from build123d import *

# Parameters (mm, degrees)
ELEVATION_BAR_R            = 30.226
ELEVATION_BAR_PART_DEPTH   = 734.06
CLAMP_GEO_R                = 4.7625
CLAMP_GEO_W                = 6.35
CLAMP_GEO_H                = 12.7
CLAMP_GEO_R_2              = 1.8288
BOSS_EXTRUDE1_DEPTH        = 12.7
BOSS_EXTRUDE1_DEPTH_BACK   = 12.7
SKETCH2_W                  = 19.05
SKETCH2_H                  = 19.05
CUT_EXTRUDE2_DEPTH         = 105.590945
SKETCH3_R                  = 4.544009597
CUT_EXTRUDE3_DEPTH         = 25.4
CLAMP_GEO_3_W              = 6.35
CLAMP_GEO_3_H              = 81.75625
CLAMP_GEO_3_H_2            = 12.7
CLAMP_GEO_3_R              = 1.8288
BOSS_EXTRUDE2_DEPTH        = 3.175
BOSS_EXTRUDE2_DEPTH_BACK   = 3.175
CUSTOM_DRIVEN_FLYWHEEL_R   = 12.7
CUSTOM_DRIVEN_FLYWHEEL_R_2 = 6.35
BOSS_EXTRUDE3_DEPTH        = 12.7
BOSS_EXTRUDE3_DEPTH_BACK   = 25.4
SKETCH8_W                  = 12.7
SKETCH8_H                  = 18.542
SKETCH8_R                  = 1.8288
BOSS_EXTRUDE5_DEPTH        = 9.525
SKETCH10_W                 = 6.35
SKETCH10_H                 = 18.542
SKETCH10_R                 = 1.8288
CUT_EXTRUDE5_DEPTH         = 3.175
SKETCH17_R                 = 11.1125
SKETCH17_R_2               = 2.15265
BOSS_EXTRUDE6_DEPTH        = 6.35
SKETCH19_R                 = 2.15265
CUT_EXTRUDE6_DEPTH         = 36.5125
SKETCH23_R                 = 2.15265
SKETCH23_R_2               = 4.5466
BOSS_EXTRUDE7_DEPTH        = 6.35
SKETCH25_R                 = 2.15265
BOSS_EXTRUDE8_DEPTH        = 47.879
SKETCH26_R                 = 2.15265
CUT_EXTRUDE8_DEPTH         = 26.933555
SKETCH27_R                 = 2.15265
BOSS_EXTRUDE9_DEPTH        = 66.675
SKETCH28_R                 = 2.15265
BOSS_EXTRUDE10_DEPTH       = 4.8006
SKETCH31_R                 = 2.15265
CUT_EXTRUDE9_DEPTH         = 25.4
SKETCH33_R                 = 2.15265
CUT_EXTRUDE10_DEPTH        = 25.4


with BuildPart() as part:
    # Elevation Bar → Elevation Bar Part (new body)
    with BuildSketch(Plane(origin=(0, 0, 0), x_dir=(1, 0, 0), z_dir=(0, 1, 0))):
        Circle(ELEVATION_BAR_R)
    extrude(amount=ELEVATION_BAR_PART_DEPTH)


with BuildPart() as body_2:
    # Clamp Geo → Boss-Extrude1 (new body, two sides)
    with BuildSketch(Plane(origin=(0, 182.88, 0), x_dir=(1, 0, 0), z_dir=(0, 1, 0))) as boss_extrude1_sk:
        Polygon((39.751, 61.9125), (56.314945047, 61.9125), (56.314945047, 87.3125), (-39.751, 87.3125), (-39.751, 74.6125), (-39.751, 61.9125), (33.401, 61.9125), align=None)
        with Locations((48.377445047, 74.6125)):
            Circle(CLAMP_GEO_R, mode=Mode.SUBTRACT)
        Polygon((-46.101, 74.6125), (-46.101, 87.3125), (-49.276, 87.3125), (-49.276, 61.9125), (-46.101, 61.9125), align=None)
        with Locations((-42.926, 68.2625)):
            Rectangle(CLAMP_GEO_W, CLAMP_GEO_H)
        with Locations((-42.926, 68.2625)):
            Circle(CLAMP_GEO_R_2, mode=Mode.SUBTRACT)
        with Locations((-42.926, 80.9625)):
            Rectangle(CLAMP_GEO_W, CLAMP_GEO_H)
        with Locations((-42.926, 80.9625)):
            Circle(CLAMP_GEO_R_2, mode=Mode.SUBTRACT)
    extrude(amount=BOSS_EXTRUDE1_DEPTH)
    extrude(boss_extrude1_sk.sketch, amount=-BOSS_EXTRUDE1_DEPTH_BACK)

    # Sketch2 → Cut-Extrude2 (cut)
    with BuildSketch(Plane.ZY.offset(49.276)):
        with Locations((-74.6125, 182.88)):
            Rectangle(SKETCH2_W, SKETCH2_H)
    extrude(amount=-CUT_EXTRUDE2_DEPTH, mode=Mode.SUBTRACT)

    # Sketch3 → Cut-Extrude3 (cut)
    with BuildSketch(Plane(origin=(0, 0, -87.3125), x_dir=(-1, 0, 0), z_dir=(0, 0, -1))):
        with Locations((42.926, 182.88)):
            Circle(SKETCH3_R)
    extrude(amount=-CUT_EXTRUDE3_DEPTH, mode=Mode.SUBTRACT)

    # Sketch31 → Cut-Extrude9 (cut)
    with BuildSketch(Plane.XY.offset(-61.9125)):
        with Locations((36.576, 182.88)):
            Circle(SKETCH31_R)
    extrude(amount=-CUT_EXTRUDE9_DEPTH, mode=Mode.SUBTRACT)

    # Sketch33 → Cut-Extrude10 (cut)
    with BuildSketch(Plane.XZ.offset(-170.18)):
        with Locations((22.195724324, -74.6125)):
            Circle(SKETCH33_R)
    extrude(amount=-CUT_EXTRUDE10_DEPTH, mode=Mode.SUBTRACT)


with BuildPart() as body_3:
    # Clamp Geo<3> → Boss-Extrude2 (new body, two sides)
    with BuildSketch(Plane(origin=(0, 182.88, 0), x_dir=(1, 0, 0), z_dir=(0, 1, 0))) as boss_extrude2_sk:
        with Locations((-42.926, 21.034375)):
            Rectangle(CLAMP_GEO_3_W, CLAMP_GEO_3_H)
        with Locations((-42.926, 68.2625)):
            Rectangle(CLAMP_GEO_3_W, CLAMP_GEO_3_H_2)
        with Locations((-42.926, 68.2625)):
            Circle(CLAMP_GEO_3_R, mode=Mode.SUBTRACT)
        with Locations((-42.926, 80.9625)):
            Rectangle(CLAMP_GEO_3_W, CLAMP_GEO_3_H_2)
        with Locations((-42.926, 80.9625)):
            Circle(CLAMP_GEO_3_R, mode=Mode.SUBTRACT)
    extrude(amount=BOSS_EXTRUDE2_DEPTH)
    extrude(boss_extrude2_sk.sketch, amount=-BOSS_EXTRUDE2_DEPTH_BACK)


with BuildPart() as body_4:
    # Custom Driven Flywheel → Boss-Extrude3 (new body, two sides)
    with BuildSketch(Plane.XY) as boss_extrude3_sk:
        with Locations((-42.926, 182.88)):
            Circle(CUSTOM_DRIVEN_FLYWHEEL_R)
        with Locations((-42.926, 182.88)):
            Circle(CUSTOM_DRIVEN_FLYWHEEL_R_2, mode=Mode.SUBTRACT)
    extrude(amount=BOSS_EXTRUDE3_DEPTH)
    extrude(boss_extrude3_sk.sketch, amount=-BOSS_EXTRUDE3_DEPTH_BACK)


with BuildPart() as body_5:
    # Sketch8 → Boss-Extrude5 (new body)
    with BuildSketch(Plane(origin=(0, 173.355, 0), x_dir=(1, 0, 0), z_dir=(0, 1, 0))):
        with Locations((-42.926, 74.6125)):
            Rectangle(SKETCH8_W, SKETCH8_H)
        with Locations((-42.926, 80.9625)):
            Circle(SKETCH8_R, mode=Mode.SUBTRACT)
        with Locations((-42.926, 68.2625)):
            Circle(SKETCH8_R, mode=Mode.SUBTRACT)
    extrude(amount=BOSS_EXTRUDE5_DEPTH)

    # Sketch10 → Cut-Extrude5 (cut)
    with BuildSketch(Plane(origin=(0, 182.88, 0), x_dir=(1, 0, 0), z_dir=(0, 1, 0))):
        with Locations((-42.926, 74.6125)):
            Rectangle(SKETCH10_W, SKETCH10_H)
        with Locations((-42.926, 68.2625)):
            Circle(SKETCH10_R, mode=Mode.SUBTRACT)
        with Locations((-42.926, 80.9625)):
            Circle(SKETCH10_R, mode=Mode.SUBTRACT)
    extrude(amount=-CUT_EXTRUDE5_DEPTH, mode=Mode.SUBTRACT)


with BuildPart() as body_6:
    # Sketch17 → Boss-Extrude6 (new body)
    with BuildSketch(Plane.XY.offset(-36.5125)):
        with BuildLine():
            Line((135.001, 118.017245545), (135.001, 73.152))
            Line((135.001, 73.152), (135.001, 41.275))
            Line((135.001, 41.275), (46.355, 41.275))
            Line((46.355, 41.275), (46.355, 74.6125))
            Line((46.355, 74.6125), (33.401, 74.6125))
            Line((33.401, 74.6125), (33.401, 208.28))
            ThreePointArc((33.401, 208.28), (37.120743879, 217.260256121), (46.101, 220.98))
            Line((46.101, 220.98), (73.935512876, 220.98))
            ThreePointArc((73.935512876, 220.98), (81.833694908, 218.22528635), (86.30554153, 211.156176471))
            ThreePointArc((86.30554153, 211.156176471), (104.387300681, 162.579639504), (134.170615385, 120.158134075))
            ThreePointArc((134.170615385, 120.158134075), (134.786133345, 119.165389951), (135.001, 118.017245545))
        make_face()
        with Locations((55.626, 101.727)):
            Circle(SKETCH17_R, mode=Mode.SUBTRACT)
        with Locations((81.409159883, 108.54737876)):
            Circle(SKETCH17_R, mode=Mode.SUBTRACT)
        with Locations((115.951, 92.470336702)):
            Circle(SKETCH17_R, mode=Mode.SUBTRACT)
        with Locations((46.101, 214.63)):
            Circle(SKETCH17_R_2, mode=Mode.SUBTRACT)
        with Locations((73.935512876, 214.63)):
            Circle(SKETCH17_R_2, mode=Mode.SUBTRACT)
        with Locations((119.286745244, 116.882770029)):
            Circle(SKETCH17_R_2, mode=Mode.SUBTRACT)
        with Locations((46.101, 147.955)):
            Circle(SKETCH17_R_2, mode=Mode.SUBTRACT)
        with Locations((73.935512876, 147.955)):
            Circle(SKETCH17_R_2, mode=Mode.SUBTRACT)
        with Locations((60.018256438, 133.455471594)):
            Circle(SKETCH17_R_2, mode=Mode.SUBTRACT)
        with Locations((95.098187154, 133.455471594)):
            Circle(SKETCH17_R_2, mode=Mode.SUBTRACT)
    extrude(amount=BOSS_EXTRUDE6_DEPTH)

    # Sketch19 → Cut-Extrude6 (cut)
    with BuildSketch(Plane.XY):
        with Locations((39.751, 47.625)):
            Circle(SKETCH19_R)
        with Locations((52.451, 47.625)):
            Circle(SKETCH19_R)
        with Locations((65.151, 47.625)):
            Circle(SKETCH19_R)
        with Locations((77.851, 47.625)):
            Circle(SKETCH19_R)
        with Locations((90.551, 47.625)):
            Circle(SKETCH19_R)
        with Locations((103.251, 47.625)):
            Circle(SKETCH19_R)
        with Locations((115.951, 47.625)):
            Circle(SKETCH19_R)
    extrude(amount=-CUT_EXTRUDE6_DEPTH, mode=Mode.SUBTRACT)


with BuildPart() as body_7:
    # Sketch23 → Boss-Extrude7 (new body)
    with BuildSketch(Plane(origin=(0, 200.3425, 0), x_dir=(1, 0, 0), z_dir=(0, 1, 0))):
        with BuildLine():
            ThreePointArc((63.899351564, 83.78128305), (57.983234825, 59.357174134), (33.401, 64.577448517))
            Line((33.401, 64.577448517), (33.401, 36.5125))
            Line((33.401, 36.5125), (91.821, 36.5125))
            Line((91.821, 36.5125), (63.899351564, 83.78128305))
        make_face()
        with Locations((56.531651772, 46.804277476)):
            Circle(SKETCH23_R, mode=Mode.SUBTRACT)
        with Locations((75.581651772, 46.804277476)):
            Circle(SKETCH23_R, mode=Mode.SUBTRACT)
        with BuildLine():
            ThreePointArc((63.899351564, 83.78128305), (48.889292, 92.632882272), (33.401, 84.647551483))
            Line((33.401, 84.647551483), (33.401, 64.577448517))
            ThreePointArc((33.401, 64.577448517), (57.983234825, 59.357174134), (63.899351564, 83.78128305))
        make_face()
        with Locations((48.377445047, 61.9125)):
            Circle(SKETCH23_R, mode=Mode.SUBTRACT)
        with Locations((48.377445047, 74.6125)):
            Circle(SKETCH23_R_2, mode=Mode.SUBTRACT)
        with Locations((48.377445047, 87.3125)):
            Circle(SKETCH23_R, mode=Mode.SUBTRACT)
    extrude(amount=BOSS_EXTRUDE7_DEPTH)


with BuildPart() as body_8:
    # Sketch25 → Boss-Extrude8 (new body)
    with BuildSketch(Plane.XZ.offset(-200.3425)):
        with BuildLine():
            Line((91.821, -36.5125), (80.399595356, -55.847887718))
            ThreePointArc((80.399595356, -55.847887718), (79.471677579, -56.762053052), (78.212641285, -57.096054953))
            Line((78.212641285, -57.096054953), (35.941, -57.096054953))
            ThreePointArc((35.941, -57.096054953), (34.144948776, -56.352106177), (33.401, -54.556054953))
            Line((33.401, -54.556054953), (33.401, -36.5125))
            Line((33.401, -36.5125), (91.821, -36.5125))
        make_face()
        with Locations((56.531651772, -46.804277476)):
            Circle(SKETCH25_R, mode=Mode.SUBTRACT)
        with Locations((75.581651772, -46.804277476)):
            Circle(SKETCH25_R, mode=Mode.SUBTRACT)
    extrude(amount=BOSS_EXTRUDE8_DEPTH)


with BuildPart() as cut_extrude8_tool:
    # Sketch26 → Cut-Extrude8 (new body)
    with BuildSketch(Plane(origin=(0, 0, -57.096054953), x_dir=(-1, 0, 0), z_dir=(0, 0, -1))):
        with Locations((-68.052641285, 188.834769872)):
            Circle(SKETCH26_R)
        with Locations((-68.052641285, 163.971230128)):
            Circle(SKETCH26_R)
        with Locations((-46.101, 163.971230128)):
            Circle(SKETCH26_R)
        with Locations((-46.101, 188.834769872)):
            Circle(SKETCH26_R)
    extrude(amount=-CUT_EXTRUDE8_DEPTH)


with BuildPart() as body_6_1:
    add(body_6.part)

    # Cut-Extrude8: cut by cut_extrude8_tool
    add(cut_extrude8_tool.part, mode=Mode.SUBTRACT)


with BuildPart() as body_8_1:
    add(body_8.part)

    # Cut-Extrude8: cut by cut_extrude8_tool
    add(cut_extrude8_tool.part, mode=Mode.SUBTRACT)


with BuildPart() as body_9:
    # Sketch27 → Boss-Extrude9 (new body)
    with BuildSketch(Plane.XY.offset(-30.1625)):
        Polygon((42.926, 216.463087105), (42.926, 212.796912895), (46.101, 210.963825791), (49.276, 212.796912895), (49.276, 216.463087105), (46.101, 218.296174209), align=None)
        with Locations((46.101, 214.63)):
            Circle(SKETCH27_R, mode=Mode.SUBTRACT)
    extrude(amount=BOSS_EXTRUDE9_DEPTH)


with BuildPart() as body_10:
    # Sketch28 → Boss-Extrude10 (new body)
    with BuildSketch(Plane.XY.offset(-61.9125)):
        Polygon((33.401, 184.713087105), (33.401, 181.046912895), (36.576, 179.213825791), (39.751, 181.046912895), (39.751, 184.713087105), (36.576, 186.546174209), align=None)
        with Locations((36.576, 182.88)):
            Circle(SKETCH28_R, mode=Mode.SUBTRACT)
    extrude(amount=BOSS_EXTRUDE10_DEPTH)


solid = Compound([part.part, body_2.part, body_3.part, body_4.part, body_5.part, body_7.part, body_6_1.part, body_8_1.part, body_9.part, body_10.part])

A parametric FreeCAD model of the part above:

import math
import FreeCAD as App
import Part
import Sketcher
Q = App.Units.Quantity

doc = App.newDocument("Part")
params = doc.addObject("Spreadsheet::Sheet", "Params")
for row, (alias, value) in enumerate([
    ("sketch1_diameter", "2.38 in"),
    ("pad1_length", "28.9 in"),
    ("sketch2_height", "1 in"),
    ("sketch2_diameter", "0.144 in"),
    ("sketch2_diameter2", "0.375 in"),
    ("pad2_length", "0.5 in"),
    ("pad2_length2", "0.5 in"),
    ("sketch3_width", "0.75 in"),
    ("pocket1_length", "105.590945 mm"),
    ("pocket2_length", "1 in"),
    ("pocket3_length", "1 in"),
    ("pocket4_length", "1 in"),
    ("sketch7_diameter", "0.144 in"),
    ("sketch7_width", "0.25 in"),
    ("sketch7_height", "4.21875 in"),
    ("pad3_length", "0.125 in"),
    ("pad3_length2", "0.125 in"),
    ("sketch8_diameter", "1 in"),
    ("sketch8_diameter2", "0.5 in"),
    ("pad4_length", "0.5 in"),
    ("pad4_length2", "1 in"),
    ("sketch9_diameter", "0.144 in"),
    ("sketch9_width", "0.5 in"),
    ("sketch9_height", "0.73 in"),
    ("pad5_length", "0.375 in"),
    ("sketch10_diameter", "0.144 in"),
    ("sketch10_width", "0.25 in"),
    ("sketch10_height", "0.73 in"),
    ("pocket5_length", "0.125 in"),
    ("sketch11_radius", "8 in"),
    ("sketch11_radius2", "0.5 in"),
    ("sketch11_diameter", "0.875 in"),
    ("sketch11_radius3", "0.125 in"),
    ("sketch11_width", "0.51 in"),
    ("pad6_length", "0.25 in"),
    ("pocket6_length", "1.4375 in"),
    ("sketch13_diameter", "0.358 in"),
    ("sketch13_width", "2.3 in"),
    ("pad7_length", "0.25 in"),
    ("sketch14_radius", "0.1 in"),
    ("sketch14_width", "2.3 in"),
    ("pad8_length", "1.885 in"),
    ("pad9_length", "26.933555 mm"),
    ("pad10_length", "2.625 in"),
    ("pad11_length", "0.189 in"),
], start=1):
    params.set(f"A{row}", alias)
    params.set(f"B{row}", "=" + value)
    params.setAlias(f"B{row}", alias)

body = doc.addObject("PartDesign::Body", "Body")

# Sketch on XZ plane
sketch1 = body.newObject("Sketcher::SketchObject", "Sketch")
sketch1.AttachmentSupport = (doc.getObject("XZ_Plane"), [""])
sketch1.MapMode = "FlatFace"
sketch1.addGeometry(Part.Circle(App.Vector(0, 0, 0), App.Vector(0, 0, 1), 30), False)
sketch1.addConstraint([
    Sketcher.Constraint("Coincident", 0, 3, -1, 1),
    Sketcher.Constraint("Diameter", 0, Q("2.38 in")),
])
sketch1.setExpression("Constraints[1]", "Params.sketch1_diameter")
pad1 = body.newObject("PartDesign::Pad", "Pad")
pad1.Profile = sketch1
pad1.setExpression("Length", "Params.pad1_length")
pad1.Reversed = True
body2 = doc.addObject("PartDesign::Body", "Body001")

# Sketch on XZ plane
sketch2 = body2.newObject("Sketcher::SketchObject", "Sketch001")
sketch2.AttachmentSupport = (doc.getObject("XZ_Plane001"), [""])
sketch2.MapMode = "FlatFace"
sketch2.AttachmentOffset = App.Placement(App.Vector(0, 0, -7.2 * 25.4), App.Rotation())
sketch2.addGeometry([
    Part.LineSegment(App.Vector(56.3, -61.9, 0), App.Vector(56.3, -87.3, 0)),  # 0
    Part.LineSegment(App.Vector(56.3, -87.3, 0), App.Vector(-49.3, -87.3, 0)),  # 1
    Part.LineSegment(App.Vector(-49.3, -87.3, 0), App.Vector(-49.3, -61.9, 0)),  # 2
    Part.LineSegment(App.Vector(-49.3, -61.9, 0), App.Vector(56.3, -61.9, 0)),  # 3
    Part.Circle(App.Vector(-42.9, -68.3, 0), App.Vector(0, 0, 1), 1.8),  # 4
    Part.Circle(App.Vector(48.4, -74.6, 0), App.Vector(0, 0, 1), 4.8),  # 5
    Part.Circle(App.Vector(-42.9, -81, 0), App.Vector(0, 0, 1), 1.8),  # 6
], False)
sketch2.addConstraint([
    Sketcher.Constraint("Coincident", 0, 2, 1, 1),
    Sketcher.Constraint("Coincident", 1, 2, 2, 1),
    Sketcher.Constraint("Coincident", 2, 2, 3, 1),
    Sketcher.Constraint("Coincident", 3, 2, 0, 1),
    Sketcher.Constraint("Vertical", 0),
    Sketcher.Constraint("Horizontal", 1),
    Sketcher.Constraint("Vertical", 2),
    Sketcher.Constraint("Horizontal", 3),
    Sketcher.Constraint("Equal", 4, 6),
    Sketcher.Constraint("Vertical", 4, 3, 6, 3),
    Sketcher.Constraint("DistanceY", 0, 2, 0, 1, Q("1 in")),
    Sketcher.Constraint("Diameter", 4, Q("0.144 in")),
    Sketcher.Constraint("Diameter", 5, Q("0.375 in")),
    Sketcher.Constraint("DistanceY", 6, 3, 4, 3, Q("0.5 in")),
    Sketcher.Constraint("DistanceY", 0, 2, 5, 3, Q("0.5 in")),
    Sketcher.Constraint("DistanceX", 4, 3, -1, 1, Q("1.69 in")),
    Sketcher.Constraint("DistanceX", 1, 2, -1, 1, Q("1.94 in")),
    Sketcher.Constraint("DistanceY", 5, 3, 4, 3, Q("0.25 in")),
    Sketcher.Constraint("DistanceY", 4, 3, -1, 1, Q("2.6875 in")),
    Sketcher.Constraint("DistanceX", 5, 3, 0, 2, Q("0.3125 in")),
    Sketcher.Constraint("DistanceX", 1, 2, 1, 1, Q("105.590945 mm")),
])
sketch2.setExpression("Constraints[10]", "Params.sketch2_height")
sketch2.setExpression("Constraints[11]", "Params.sketch2_diameter")
sketch2.setExpression("Constraints[12]", "Params.sketch2_diameter2")
pad2 = body2.newObject("PartDesign::Pad", "Pad001")
pad2.Profile = sketch2
pad2.Type = "TwoLengths"
pad2.setExpression("Length", "Params.pad2_length")
pad2.setExpression("Length2", "Params.pad2_length2")
pad2.Reversed = True

# Sketch on YZ plane
sketch3 = body2.newObject("Sketcher::SketchObject", "Sketch002")
sketch3.AttachmentSupport = (doc.getObject("YZ_Plane001"), [""])
sketch3.MapMode = "FlatFace"
sketch3.AttachmentOffset = App.Placement(App.Vector(0, 0, -1.94 * 25.4), App.Rotation())
sketch3.addGeometry([
    Part.LineSegment(App.Vector(192, -84, 0), App.Vector(173, -84, 0)),
    Part.LineSegment(App.Vector(173, -84, 0), App.Vector(173, -65, 0)),
    Part.LineSegment(App.Vector(173, -65, 0), App.Vector(192, -65, 0)),
    Part.LineSegment(App.Vector(192, -65, 0), App.Vector(192, -84, 0)),
], False)
sketch3.addConstraint([
    Sketcher.Constraint("Coincident", 0, 2, 1, 1),
    Sketcher.Constraint("Coincident", 1, 2, 2, 1),
    Sketcher.Constraint("Coincident", 2, 2, 3, 1),
    Sketcher.Constraint("Coincident", 3, 2, 0, 1),
    Sketcher.Constraint("Horizontal", 0),
    Sketcher.Constraint("Vertical", 1),
    Sketcher.Constraint("Horizontal", 2),
    Sketcher.Constraint("Vertical", 3),
    Sketcher.Constraint("Equal", 2, 1),
    Sketcher.Constraint("DistanceX", 0, 2, 0, 1, Q("0.75 in")),
    Sketcher.Constraint("DistanceX", -1, 1, 0, 2, Q("6.825 in")),
    Sketcher.Constraint("DistanceY", 0, 2, -1, 1, Q("3.3125 in")),
])
sketch3.setExpression("Constraints[9]", "Params.sketch3_width")
pocket1 = body2.newObject("PartDesign::Pocket", "Pocket")
pocket1.Profile = sketch3
pocket1.setExpression("Length", "Params.pocket1_length")
pocket1.Reversed = True

# Sketch on XY plane
sketch4 = body2.newObject("Sketcher::SketchObject", "Sketch003")
sketch4.AttachmentSupport = (doc.getObject("XY_Plane001"), [""])
sketch4.MapMode = "FlatFace"
sketch4.AttachmentOffset = App.Placement(App.Vector(0, 0, -3.4375 * 25.4), App.Rotation())
sketch4.addGeometry(Part.Circle(App.Vector(-42.9, 182.9, 0), App.Vector(0, 0, 1), 4.5), False)
sketch4.addConstraint([
    Sketcher.Constraint("DistanceY", -1, 1, 0, 3, Q("7.2 in")),
    Sketcher.Constraint("DistanceX", 0, 3, -1, 1, Q("1.69 in")),
    Sketcher.Constraint("Diameter", 0, Q("9.088019 mm")),
])
pocket2 = body2.newObject("PartDesign::Pocket", "Pocket001")
pocket2.Profile = sketch4
pocket2.setExpression("Length", "Params.pocket2_length")
pocket2.Reversed = True

# Sketch on XY plane
sketch5 = body2.newObject("Sketcher::SketchObject", "Sketch004")
sketch5.AttachmentSupport = (doc.getObject("XY_Plane001"), [""])
sketch5.MapMode = "FlatFace"
sketch5.AttachmentOffset = App.Placement(App.Vector(0, 0, -2.4375 * 25.4), App.Rotation())
sketch5.addGeometry(Part.Circle(App.Vector(36.6, 182.9, 0), App.Vector(0, 0, 1), 2.2), False)
sketch5.addConstraint([
    Sketcher.Constraint("Diameter", 0, Q("0.1695 in")),
    Sketcher.Constraint("DistanceY", -1, 1, 0, 3, Q("7.2 in")),
    Sketcher.Constraint("DistanceX", -1, 1, 0, 3, Q("1.44 in")),
])
pocket3 = body2.newObject("PartDesign::Pocket", "Pocket002")
pocket3.Profile = sketch5
pocket3.setExpression("Length", "Params.pocket3_length")

# Sketch on XZ plane
sketch6 = body2.newObject("Sketcher::SketchObject", "Sketch005")
sketch6.AttachmentSupport = (doc.getObject("XZ_Plane001"), [""])
sketch6.MapMode = "FlatFace"
sketch6.AttachmentOffset = App.Placement(App.Vector(0, 0, -6.7 * 25.4), App.Rotation())
sketch6.addGeometry(Part.Circle(App.Vector(22.2, -74.6, 0), App.Vector(0, 0, 1), 2.2), False)
sketch6.addConstraint([
    Sketcher.Constraint("Diameter", 0, Q("0.1695 in")),
    Sketcher.Constraint("DistanceY", 0, 3, -1, 1, Q("2.9375 in")),
    Sketcher.Constraint("DistanceX", -1, 1, 0, 3, Q("22.195724 mm")),
])
pocket4 = body2.newObject("PartDesign::Pocket", "Pocket003")
pocket4.Profile = sketch6
pocket4.setExpression("Length", "Params.pocket4_length")
body3 = doc.addObject("PartDesign::Body", "Body002")

# Sketch on XZ plane
sketch7 = body3.newObject("Sketcher::SketchObject", "Sketch006")
sketch7.AttachmentSupport = (doc.getObject("XZ_Plane002"), [""])
sketch7.MapMode = "FlatFace"
sketch7.AttachmentOffset = App.Placement(App.Vector(0, 0, -7.2 * 25.4), App.Rotation())
sketch7.addGeometry([
    Part.LineSegment(App.Vector(-46.1, 19.8, 0), App.Vector(-39.8, 19.8, 0)),  # 0
    Part.LineSegment(App.Vector(-39.8, 19.8, 0), App.Vector(-39.8, -87.3, 0)),  # 1
    Part.LineSegment(App.Vector(-39.8, -87.3, 0), App.Vector(-46.1, -87.3, 0)),  # 2
    Part.LineSegment(App.Vector(-46.1, -87.3, 0), App.Vector(-46.1, 19.8, 0)),  # 3
    Part.Circle(App.Vector(-42.9, -68.3, 0), App.Vector(0, 0, 1), 1.8),  # 4
    Part.Circle(App.Vector(-42.9, -81, 0), App.Vector(0, 0, 1), 1.8),  # 5
], False)
sketch7.addConstraint([
    Sketcher.Constraint("Coincident", 0, 2, 1, 1),
    Sketcher.Constraint("Coincident", 1, 2, 2, 1),
    Sketcher.Constraint("Coincident", 2, 2, 3, 1),
    Sketcher.Constraint("Coincident", 3, 2, 0, 1),
    Sketcher.Constraint("Horizontal", 0),
    Sketcher.Constraint("Vertical", 1),
    Sketcher.Constraint("Horizontal", 2),
    Sketcher.Constraint("Vertical", 3),
    Sketcher.Constraint("Equal", 4, 5),
    Sketcher.Constraint("Vertical", 4, 3, 5, 3),
    Sketcher.Constraint("Diameter", 4, Q("0.144 in")),
    Sketcher.Constraint("DistanceX", 0, 1, 0, 2, Q("0.25 in")),
    Sketcher.Constraint("DistanceY", 5, 3, 4, 3, Q("0.5 in")),
    Sketcher.Constraint("DistanceY", 1, 2, 1, 1, Q("4.21875 in")),
    Sketcher.Constraint("DistanceX", 4, 3, -1, 1, Q("1.69 in")),
    Sketcher.Constraint("DistanceY", 1, 2, 5, 3, Q("0.25 in")),
    Sketcher.Constraint("DistanceY", 4, 3, -1, 1, Q("2.6875 in")),
    Sketcher.Constraint("DistanceX", 0, 2, -1, 1, Q("1.565 in")),
])
sketch7.setExpression("Constraints[10]", "Params.sketch7_diameter")
sketch7.setExpression("Constraints[11]", "Params.sketch7_width")
sketch7.setExpression("Constraints[13]", "Params.sketch7_height")
pad3 = body3.newObject("PartDesign::Pad", "Pad002")
pad3.Profile = sketch7
pad3.Type = "TwoLengths"
pad3.setExpression("Length", "Params.pad3_length")
pad3.setExpression("Length2", "Params.pad3_length2")
pad3.Reversed = True
body4 = doc.addObject("PartDesign::Body", "Body003")

# Sketch on XY plane
sketch8 = body4.newObject("Sketcher::SketchObject", "Sketch007")
sketch8.AttachmentSupport = (doc.getObject("XY_Plane003"), [""])
sketch8.MapMode = "FlatFace"
sketch8.addGeometry([
    Part.Circle(App.Vector(-43, 183, 0), App.Vector(0, 0, 1), 13),
    Part.Circle(App.Vector(-43, 183, 0), App.Vector(0, 0, 1), 6),
], False)
sketch8.addConstraint([
    Sketcher.Constraint("Coincident", 1, 3, 0, 3),
    Sketcher.Constraint("Diameter", 0, Q("1 in")),
    Sketcher.Constraint("Diameter", 1, Q("0.5 in")),
    Sketcher.Constraint("DistanceY", -1, 1, 0, 3, Q("7.2 in")),
    Sketcher.Constraint("DistanceX", 0, 3, -1, 1, Q("1.69 in")),
])
sketch8.setExpression("Constraints[1]", "Params.sketch8_diameter")
sketch8.setExpression("Constraints[2]", "Params.sketch8_diameter2")
pad4 = body4.newObject("PartDesign::Pad", "Pad003")
pad4.Profile = sketch8
pad4.Type = "TwoLengths"
pad4.setExpression("Length", "Params.pad4_length")
pad4.setExpression("Length2", "Params.pad4_length2")
body5 = doc.addObject("PartDesign::Body", "Body004")

# Sketch on XZ plane
sketch9 = body5.newObject("Sketcher::SketchObject", "Sketch008")
sketch9.AttachmentSupport = (doc.getObject("XZ_Plane004"), [""])
sketch9.MapMode = "FlatFace"
sketch9.AttachmentOffset = App.Placement(App.Vector(0, 0, -6.825 * 25.4), App.Rotation())
sketch9.addGeometry([
    Part.LineSegment(App.Vector(-49.3, -83.9, 0), App.Vector(-49.3, -65.3, 0)),  # 0
    Part.LineSegment(App.Vector(-49.3, -65.3, 0), App.Vector(-36.6, -65.3, 0)),  # 1
    Part.LineSegment(App.Vector(-36.6, -65.3, 0), App.Vector(-36.6, -83.9, 0)),  # 2
    Part.LineSegment(App.Vector(-36.6, -83.9, 0), App.Vector(-49.3, -83.9, 0)),  # 3
    Part.Circle(App.Vector(-42.9, -68.3, 0), App.Vector(0, 0, 1), 1.8),  # 4
    Part.Circle(App.Vector(-42.9, -81, 0), App.Vector(0, 0, 1), 1.8),  # 5
], False)
sketch9.addConstraint([
    Sketcher.Constraint("Coincident", 0, 2, 1, 1),
    Sketcher.Constraint("Coincident", 1, 2, 2, 1),
    Sketcher.Constraint("Coincident", 2, 2, 3, 1),
    Sketcher.Constraint("Coincident", 3, 2, 0, 1),
    Sketcher.Constraint("Vertical", 0),
    Sketcher.Constraint("Horizontal", 1),
    Sketcher.Constraint("Vertical", 2),
    Sketcher.Constraint("Horizontal", 3),
    Sketcher.Constraint("Equal", 4, 5),
    Sketcher.Constraint("Vertical", 4, 3, 5, 3),
    Sketcher.Constraint("Diameter", 4, Q("0.144 in")),
    Sketcher.Constraint("DistanceX", 1, 1, 1, 2, Q("0.5 in")),
    Sketcher.Constraint("DistanceY", 0, 1, 0, 2, Q("0.73 in")),
    Sketcher.Constraint("DistanceY", 5, 3, 4, 3, Q("0.5 in")),
    Sketcher.Constraint("DistanceX", 4, 3, -1, 1, Q("1.69 in")),
    Sketcher.Constraint("DistanceX", 0, 2, -1, 1, Q("1.94 in")),
    Sketcher.Constraint("DistanceY", 4, 3, -1, 1, Q("2.6875 in")),
    Sketcher.Constraint("DistanceY", 4, 3, 0, 2, Q("0.115 in")),
])
sketch9.setExpression("Constraints[10]", "Params.sketch9_diameter")
sketch9.setExpression("Constraints[11]", "Params.sketch9_width")
sketch9.setExpression("Constraints[12]", "Params.sketch9_height")
pad5 = body5.newObject("PartDesign::Pad", "Pad004")
pad5.Profile = sketch9
pad5.setExpression("Length", "Params.pad5_length")
pad5.Reversed = True

# Sketch on XZ plane
sketch10 = body5.newObject("Sketcher::SketchObject", "Sketch009")
sketch10.AttachmentSupport = (doc.getObject("XZ_Plane004"), [""])
sketch10.MapMode = "FlatFace"
sketch10.AttachmentOffset = App.Placement(App.Vector(0, 0, -7.2 * 25.4), App.Rotation())
sketch10.addGeometry([
    Part.LineSegment(App.Vector(-46.1, -83.9, 0), App.Vector(-46.1, -65.3, 0)),  # 0
    Part.LineSegment(App.Vector(-46.1, -65.3, 0), App.Vector(-39.8, -65.3, 0)),  # 1
    Part.LineSegment(App.Vector(-39.8, -65.3, 0), App.Vector(-39.8, -83.9, 0)),  # 2
    Part.LineSegment(App.Vector(-39.8, -83.9, 0), App.Vector(-46.1, -83.9, 0)),  # 3
    Part.Circle(App.Vector(-42.9, -68.3, 0), App.Vector(0, 0, 1), 1.8),  # 4
    Part.Circle(App.Vector(-42.9, -81, 0), App.Vector(0, 0, 1), 1.8),  # 5
], False)
sketch10.addConstraint([
    Sketcher.Constraint("Coincident", 0, 2, 1, 1),
    Sketcher.Constraint("Coincident", 1, 2, 2, 1),
    Sketcher.Constraint("Coincident", 2, 2, 3, 1),
    Sketcher.Constraint("Coincident", 3, 2, 0, 1),
    Sketcher.Constraint("Vertical", 0),
    Sketcher.Constraint("Horizontal", 1),
    Sketcher.Constraint("Vertical", 2),
    Sketcher.Constraint("Horizontal", 3),
    Sketcher.Constraint("Equal", 4, 5),
    Sketcher.Constraint("Vertical", 4, 3, 5, 3),
    Sketcher.Constraint("Diameter", 4, Q("0.144 in")),
    Sketcher.Constraint("DistanceX", 1, 1, 1, 2, Q("0.25 in")),
    Sketcher.Constraint("DistanceY", 0, 1, 0, 2, Q("0.73 in")),
    Sketcher.Constraint("DistanceY", 5, 3, 4, 3, Q("0.5 in")),
    Sketcher.Constraint("DistanceX", 4, 3, -1, 1, Q("1.69 in")),
    Sketcher.Constraint("DistanceY", 4, 3, -1, 1, Q("2.6875 in")),
    Sketcher.Constraint("DistanceX", 0, 2, -1, 1, Q("1.815 in")),
    Sketcher.Constraint("DistanceY", 4, 3, 0, 2, Q("0.115 in")),
])
sketch10.setExpression("Constraints[10]", "Params.sketch10_diameter")
sketch10.setExpression("Constraints[11]", "Params.sketch10_width")
sketch10.setExpression("Constraints[12]", "Params.sketch10_height")
pocket5 = body5.newObject("PartDesign::Pocket", "Pocket004")
pocket5.Profile = sketch10
pocket5.setExpression("Length", "Params.pocket5_length")
pocket5.Reversed = True
body6 = doc.addObject("PartDesign::Body", "Body005")

# Sketch on XY plane
sketch11 = body6.newObject("Sketcher::SketchObject", "Sketch010")
sketch11.AttachmentSupport = (doc.getObject("XY_Plane005"), [""])
sketch11.MapMode = "FlatFace"
sketch11.AttachmentOffset = App.Placement(App.Vector(0, 0, -1.4375 * 25.4), App.Rotation())
sketch11.addGeometry([
    Part.LineSegment(App.Vector(135, 41.3, 0), App.Vector(135, 118, 0)),  # 0
    Part.ArcOfCircle(Part.Circle(App.Vector(131.8, 118, 0), App.Vector(0, 0, 1), 3.2), math.radians(0), math.radians(42)),  # 1
    Part.ArcOfCircle(Part.Circle(App.Vector(284.2, 257.2, 0), App.Vector(0, 0, 1), 203.2), math.radians(-167), math.radians(-138)),  # 2
    Part.ArcOfCircle(Part.Circle(App.Vector(73.9, 208.3, 0), App.Vector(0, 0, 1), 12.7), math.radians(13), math.radians(90)),  # 3
    Part.LineSegment(App.Vector(73.9, 221, 0), App.Vector(46.1, 221, 0)),  # 4
    Part.ArcOfCircle(Part.Circle(App.Vector(46.1, 208.3, 0), App.Vector(0, 0, 1), 12.7), math.radians(90), math.radians(180)),  # 5
    Part.LineSegment(App.Vector(33.4, 208.3, 0), App.Vector(33.4, 74.6, 0)),  # 6
    Part.LineSegment(App.Vector(33.4, 74.6, 0), App.Vector(46.4, 74.6, 0)),  # 7
    Part.LineSegment(App.Vector(46.4, 74.6, 0), App.Vector(46.4, 41.3, 0)),  # 8
    Part.LineSegment(App.Vector(46.4, 41.3, 0), App.Vector(135, 41.3, 0)),  # 9
    Part.Circle(App.Vector(116, 92.5, 0), App.Vector(0, 0, 1), 11.1),  # 10
    Part.Circle(App.Vector(119.3, 116.9, 0), App.Vector(0, 0, 1), 2.2),  # 11
    Part.Circle(App.Vector(95.1, 133.5, 0), App.Vector(0, 0, 1), 2.2),  # 12
    Part.Circle(App.Vector(81.4, 108.5, 0), App.Vector(0, 0, 1), 11.1),  # 13
    Part.Circle(App.Vector(55.6, 101.7, 0), App.Vector(0, 0, 1), 11.1),  # 14
    Part.Circle(App.Vector(73.9, 148, 0), App.Vector(0, 0, 1), 2.2),  # 15
    Part.Circle(App.Vector(60, 133.5, 0), App.Vector(0, 0, 1), 2.2),  # 16
    Part.Circle(App.Vector(46.1, 148, 0), App.Vector(0, 0, 1), 2.2),  # 17
    Part.Circle(App.Vector(73.9, 214.6, 0), App.Vector(0, 0, 1), 2.2),  # 18
    Part.Circle(App.Vector(46.1, 214.6, 0), App.Vector(0, 0, 1), 2.2),  # 19
], False)
sketch11.addConstraint([
    Sketcher.Constraint("Tangent", 0, 2, 1, 1),
    Sketcher.Constraint("Tangent", 1, 2, 2, 2),
    Sketcher.Constraint("Tangent", 2, 1, 3, 1),
    Sketcher.Constraint("Tangent", 3, 2, 4, 1),
    Sketcher.Constraint("Tangent", 4, 2, 5, 1),
    Sketcher.Constraint("Tangent", 5, 2, 6, 1),
    Sketcher.Constraint("Coincident", 6, 2, 7, 1),
    Sketcher.Constraint("Coincident", 7, 2, 8, 1),
    Sketcher.Constraint("Coincident", 8, 2, 9, 1),
    Sketcher.Constraint("Coincident", 9, 2, 0, 1),
    Sketcher.Constraint("Vertical", 0),
    Sketcher.Constraint("Horizontal", 4),
    Sketcher.Constraint("Vertical", 6),
    Sketcher.Constraint("Horizontal", 7),
    Sketcher.Constraint("Vertical", 8),
    Sketcher.Constraint("Horizontal", 9),
    Sketcher.Constraint("Equal", 3, 5),
    Sketcher.Constraint("Equal", 11, 12),
    Sketcher.Constraint("Equal", 10, 13),
    Sketcher.Constraint("Equal", 13, 14),
    Sketcher.Constraint("Equal", 12, 15),
    Sketcher.Constraint("Equal", 15, 16),
    Sketcher.Constraint("Equal", 16, 17),
    Sketcher.Constraint("Equal", 17, 18),
    Sketcher.Constraint("Equal", 18, 19),
    Sketcher.Constraint("Horizontal", 12, 3, 16, 3),
    Sketcher.Constraint("Horizontal", 15, 3, 17, 3),
    Sketcher.Constraint("Horizontal", 18, 3, 19, 3),
    Sketcher.Constraint("Vertical", 3, 3, 15, 3),
    Sketcher.Constraint("Vertical", 5, 3, 17, 3),
    Sketcher.Constraint("Vertical", 15, 3, 18, 3),
    Sketcher.Constraint("Vertical", 17, 3, 19, 3),
    Sketcher.Constraint("Radius", 2, Q("8 in")),
    Sketcher.Constraint("Radius", 3, Q("0.5 in")),
    Sketcher.Constraint("Diameter", 10, Q("0.875 in")),
    Sketcher.Constraint("Radius", 1, Q("0.125 in")),
    Sketcher.Constraint("DistanceX", 1, 3, 2, 3, Q("6 in")),
    Sketcher.Constraint("DistanceX", 14, 3, 1, 3, Q("3 in")),
    Sketcher.Constraint("Diameter", 11, Q("0.1695 in")),
    Sketcher.Constraint("DistanceX", 7, 1, 7, 2, Q("0.51 in")),
    Sketcher.Constraint("DistanceX", 9, 1, 9, 2, Q("3.49 in")),
    Sketcher.Constraint("DistanceY", -1, 1, 3, 3, Q("8.2 in")),
    Sketcher.Constraint("DistanceY", 8, 2, 8, 1, Q("1.3125 in")),
    Sketcher.Constraint("DistanceX", -1, 1, 1, 3, Q("5.19 in")),
    Sketcher.Constraint("DistanceY", -1, 1, 18, 3, Q("8.45 in")),
    Sketcher.Constraint("DistanceX", 5, 3, 10, 3, Q("2.75 in")),
    Sketcher.Constraint("DistanceY", 14, 3, 15, 3, Q("1.82 in")),
    Sketcher.Constraint("DistanceY", 8, 2, 14, 3, Q("2.38 in")),
    Sketcher.Constraint("DistanceY", 6, 2, 6, 1, Q("5.2625 in")),
    Sketcher.Constraint("DistanceY", -1, 1, 2, 3, Q("10.125 in")),
    Sketcher.Constraint("DistanceY", 11, 3, 12, 3, Q("16.572702 mm")),
    Sketcher.Constraint("DistanceY", -1, 1, 11, 3, Q("116.88277 mm")),
    Sketcher.Constraint("DistanceX", -1, 1, 13, 3, Q("81.40916 mm")),
    Sketcher.Constraint("DistanceY", -1, 1, 13, 3, Q("108.547379 mm")),
    Sketcher.Constraint("DistanceY", 10, 3, 1, 3, Q("25.546909 mm")),
    Sketcher.Constraint("DistanceX", 12, 3, 11, 3, Q("24.188558 mm")),
    Sketcher.Constraint("DistanceX", 16, 3, 12, 3, Q("35.079931 mm")),
    Sketcher.Constraint("DistanceX", 11, 3, 1, 2, Q("14.88387 mm")),
])
sketch11.setExpression("Constraints[32]", "Params.sketch11_radius")
sketch11.setExpression("Constraints[33]", "Params.sketch11_radius2")
sketch11.setExpression("Constraints[34]", "Params.sketch11_diameter")
sketch11.setExpression("Constraints[35]", "Params.sketch11_radius3")
sketch11.setExpression("Constraints[39]", "Params.sketch11_width")
pad6 = body6.newObject("PartDesign::Pad", "Pad005")
pad6.Profile = sketch11
pad6.setExpression("Length", "Params.pad6_length")

# Sketch on XY plane
sketch12 = body6.newObject("Sketcher::SketchObject", "Sketch011")
sketch12.AttachmentSupport = (doc.getObject("XY_Plane005"), [""])
sketch12.MapMode = "FlatFace"
sketch12.addGeometry([
    Part.Circle(App.Vector(39.8, 47.6, 0), App.Vector(0, 0, 1), 2.2),  # 0
    Part.Circle(App.Vector(52.5, 47.6, 0), App.Vector(0, 0, 1), 2.2),  # 1
    Part.Circle(App.Vector(65.2, 47.6, 0), App.Vector(0, 0, 1), 2.2),  # 2
    Part.Circle(App.Vector(77.9, 47.6, 0), App.Vector(0, 0, 1), 2.2),  # 3
    Part.Circle(App.Vector(90.6, 47.6, 0), App.Vector(0, 0, 1), 2.2),  # 4
    Part.Circle(App.Vector(103.3, 47.6, 0), App.Vector(0, 0, 1), 2.2),  # 5
    Part.Circle(App.Vector(116, 47.6, 0), App.Vector(0, 0, 1), 2.2),  # 6
], False)
sketch12.addConstraint([
    Sketcher.Constraint("Equal", 0, 1),
    Sketcher.Constraint("Equal", 1, 2),
    Sketcher.Constraint("Equal", 2, 3),
    Sketcher.Constraint("Equal", 3, 4),
    Sketcher.Constraint("Equal", 4, 5),
    Sketcher.Constraint("Equal", 5, 6),
    Sketcher.Constraint("Horizontal", 0, 3, 1, 3),
    Sketcher.Constraint("Horizontal", 1, 3, 2, 3),
    Sketcher.Constraint("Horizontal", 2, 3, 3, 3),
    Sketcher.Constraint("Horizontal", 3, 3, 4, 3),
    Sketcher.Constraint("Horizontal", 4, 3, 5, 3),
    Sketcher.Constraint("Horizontal", 5, 3, 6, 3),
    Sketcher.Constraint("DistanceX", 0, 3, 2, 3, Q("1 in")),
    Sketcher.Constraint("DistanceX", 1, 3, 3, 3, Q("1 in")),
    Sketcher.Constraint("DistanceX", 2, 3, 4, 3, Q("1 in")),
    Sketcher.Constraint("DistanceX", 3, 3, 5, 3, Q("1 in")),
    Sketcher.Constraint("DistanceX", 4, 3, 6, 3, Q("1 in")),
    Sketcher.Constraint("Diameter", 0, Q("0.1695 in")),
    Sketcher.Constraint("DistanceX", 0, 3, 1, 3, Q("0.5 in")),
    Sketcher.Constraint("DistanceX", -1, 1, 0, 3, Q("1.565 in")),
    Sketcher.Constraint("DistanceY", -1, 1, 0, 3, Q("1.875 in")),
])
pocket6 = body6.newObject("PartDesign::Pocket", "Pocket005")
pocket6.Profile = sketch12
pocket6.setExpression("Length", "Params.pocket6_length")
body7 = doc.addObject("PartDesign::Body", "Body006")

# Sketch on XZ plane
sketch13 = body7.newObject("Sketcher::SketchObject", "Sketch012")
sketch13.AttachmentSupport = (doc.getObject("XZ_Plane006"), [""])
sketch13.MapMode = "FlatFace"
sketch13.AttachmentOffset = App.Placement(App.Vector(0, 0, -7.8875 * 25.4), App.Rotation())
sketch13.addGeometry([
    Part.LineSegment(App.Vector(33.4, -36.5, 0), App.Vector(91.8, -36.5, 0)),  # 0
    Part.LineSegment(App.Vector(91.8, -36.5, 0), App.Vector(63.9, -83.8, 0)),  # 1
    Part.ArcOfCircle(Part.Circle(App.Vector(48.4, -74.6, 0), App.Vector(0, 0, 1), 18), math.radians(-146), math.radians(-31)),  # 2
    Part.LineSegment(App.Vector(33.4, -84.6, 0), App.Vector(33.4, -36.5, 0)),  # 3
    Part.Circle(App.Vector(56.5, -46.8, 0), App.Vector(0, 0, 1), 2.2),  # 4
    Part.Circle(App.Vector(48.4, -61.9, 0), App.Vector(0, 0, 1), 2.2),  # 5
    Part.Circle(App.Vector(75.6, -46.8, 0), App.Vector(0, 0, 1), 2.2),  # 6
    Part.Circle(App.Vector(48.4, -74.6, 0), App.Vector(0, 0, 1), 4.5),  # 7
    Part.Circle(App.Vector(48.4, -87.3, 0), App.Vector(0, 0, 1), 2.2),  # 8
], False)
sketch13.addConstraint([
    Sketcher.Constraint("Coincident", 0, 2, 1, 1),
    Sketcher.Constraint("Tangent", 1, 2, 2, 2),
    Sketcher.Constraint("Coincident", 2, 1, 3, 1),
    Sketcher.Constraint("Coincident", 3, 2, 0, 1),
    Sketcher.Constraint("Horizontal", 0),
    Sketcher.Constraint("Vertical", 3),
    Sketcher.Constraint("Coincident", 7, 3, 2, 3),
    Sketcher.Constraint("Equal", 4, 5),
    Sketcher.Constraint("Equal", 5, 6),
    Sketcher.Constraint("Equal", 6, 8),
    Sketcher.Constraint("Horizontal", 4, 3, 6, 3),
    Sketcher.Constraint("Vertical", 2, 3, 5, 3),
    Sketcher.Constraint("Vertical", 7, 3, 8, 3),
    Sketcher.Constraint("Diameter", 7, Q("0.358 in")),
    Sketcher.Constraint("DistanceX", 0, 1, 0, 2, Q("2.3 in")),
    Sketcher.Constraint("DistanceY", 8, 3, 5, 3, Q("1 in")),
    Sketcher.Constraint("DistanceY", 5, 3, 0, 2, Q("1 in")),
    Sketcher.Constraint("Diameter", 4, Q("0.1695 in")),
    Sketcher.Constraint("DistanceY", 2, 3, 5, 3, Q("0.5 in")),
    Sketcher.Constraint("DistanceX", 4, 3, 6, 3, Q("0.75 in")),
    Sketcher.Constraint("DistanceY", 2, 3, -1, 1, Q("2.9375 in")),
    Sketcher.Constraint("DistanceX", -1, 1, 0, 2, Q("3.615 in")),
    Sketcher.Constraint("Radius", 2, Q("18.02765 mm")),
    Sketcher.Constraint("DistanceY", 3, 1, 3, 2, Q("48.135051 mm")),
    Sketcher.Constraint("DistanceX", 4, 3, 1, 2, Q("7.3677 mm")),
    Sketcher.Constraint("DistanceY", 4, 3, -1, 1, Q("46.804277 mm")),
])
sketch13.setExpression("Constraints[13]", "Params.sketch13_diameter")
sketch13.setExpression("Constraints[14]", "Params.sketch13_width")
pad7 = body7.newObject("PartDesign::Pad", "Pad006")
pad7.Profile = sketch13
pad7.setExpression("Length", "Params.pad7_length")
pad7.Reversed = True
body8 = doc.addObject("PartDesign::Body", "Body007")

# Sketch on XZ plane
sketch14 = body8.newObject("Sketcher::SketchObject", "Sketch013")
sketch14.AttachmentSupport = (doc.getObject("XZ_Plane007"), [""])
sketch14.MapMode = "FlatFace"
sketch14.AttachmentOffset = App.Placement(App.Vector(0, 0, -7.8875 * 25.4), App.Rotation())
sketch14.addGeometry([
    Part.LineSegment(App.Vector(80.4, -55.8, 0), App.Vector(91.8, -36.5, 0)),  # 0
    Part.LineSegment(App.Vector(91.8, -36.5, 0), App.Vector(33.4, -36.5, 0)),  # 1
    Part.LineSegment(App.Vector(33.4, -36.5, 0), App.Vector(33.4, -54.6, 0)),  # 2
    Part.ArcOfCircle(Part.Circle(App.Vector(35.9, -54.6, 0), App.Vector(0, 0, 1), 2.5), math.radians(-180), math.radians(-90)),  # 3
    Part.LineSegment(App.Vector(35.9, -57.1, 0), App.Vector(78.2, -57.1, 0)),  # 4
    Part.ArcOfCircle(Part.Circle(App.Vector(78.2, -54.6, 0), App.Vector(0, 0, 1), 2.5), math.radians(-90), math.radians(-31)),  # 5
    Part.Circle(App.Vector(75.6, -46.8, 0), App.Vector(0, 0, 1), 2.2),  # 6
    Part.Circle(App.Vector(56.5, -46.8, 0), App.Vector(0, 0, 1), 2.2),  # 7
], False)
sketch14.addConstraint([
    Sketcher.Constraint("Coincident", 0, 2, 1, 1),
    Sketcher.Constraint("Coincident", 1, 2, 2, 1),
    Sketcher.Constraint("Tangent", 2, 2, 3, 1),
    Sketcher.Constraint("Tangent", 3, 2, 4, 1),
    Sketcher.Constraint("Tangent", 4, 2, 5, 1),
    Sketcher.Constraint("Tangent", 5, 2, 0, 1),
    Sketcher.Constraint("Horizontal", 1),
    Sketcher.Constraint("Vertical", 2),
    Sketcher.Constraint("Horizontal", 4),
    Sketcher.Constraint("Equal", 3, 5),
    Sketcher.Constraint("Equal", 6, 7),
    Sketcher.Constraint("Horizontal", 6, 3, 7, 3),
    Sketcher.Constraint("Radius", 3, Q("0.1 in")),
    Sketcher.Constraint("DistanceX", 1, 2, 1, 1, Q("2.3 in")),
    Sketcher.Constraint("Diameter", 6, Q("0.1695 in")),
    Sketcher.Constraint("DistanceX", 7, 3, 6, 3, Q("0.75 in")),
    Sketcher.Constraint("DistanceX", -1, 1, 3, 3, Q("1.415 in")),
    Sketcher.Constraint("DistanceY", 0, 2, -1, 1, Q("1.4375 in")),
    Sketcher.Constraint("DistanceX", 4, 1, 4, 2, Q("42.271641 mm")),
    Sketcher.Constraint("Distance", 0, Q("22.456752 mm")),
    Sketcher.Constraint("DistanceX", -1, 1, 6, 3, Q("75.581652 mm")),
    Sketcher.Constraint("DistanceY", 5, 2, 6, 3, Q("9.04361 mm")),
])
sketch14.setExpression("Constraints[12]", "Params.sketch14_radius")
sketch14.setExpression("Constraints[13]", "Params.sketch14_width")
pad8 = body8.newObject("PartDesign::Pad", "Pad007")
pad8.Profile = sketch14
pad8.setExpression("Length", "Params.pad8_length")
body9 = doc.addObject("PartDesign::Body", "Body008")
body9.AllowCompound = True

# Sketch on XY plane
sketch15 = body9.newObject("Sketcher::SketchObject", "Sketch014")
sketch15.AttachmentSupport = (doc.getObject("XY_Plane008"), [""])
sketch15.MapMode = "FlatFace"
sketch15.AttachmentOffset = App.Placement(App.Vector(0, 0, -57.096055), App.Rotation())
sketch15.addGeometry([
    Part.Circle(App.Vector(68.1, 188.8, 0), App.Vector(0, 0, 1), 2.2),
    Part.Circle(App.Vector(68.1, 164, 0), App.Vector(0, 0, 1), 2.2),
    Part.Circle(App.Vector(46.1, 164, 0), App.Vector(0, 0, 1), 2.2),
    Part.Circle(App.Vector(46.1, 188.8, 0), App.Vector(0, 0, 1), 2.2),
], False)
sketch15.addConstraint([
    Sketcher.Constraint("Equal", 0, 1),
    Sketcher.Constraint("Equal", 1, 2),
    Sketcher.Constraint("Equal", 2, 3),
    Sketcher.Constraint("Horizontal", 1, 3, 2, 3),
    Sketcher.Constraint("Horizontal", 0, 3, 3, 3),
    Sketcher.Constraint("Vertical", 0, 3, 1, 3),
    Sketcher.Constraint("Vertical", 2, 3, 3, 3),
    Sketcher.Constraint("Diameter", 0, Q("0.1695 in")),
    Sketcher.Constraint("DistanceX", -1, 1, 2, 3, Q("1.815 in")),
    Sketcher.Constraint("DistanceX", -1, 1, 0, 3, Q("68.052641 mm")),
    Sketcher.Constraint("DistanceY", -1, 1, 0, 3, Q("188.83477 mm")),
    Sketcher.Constraint("DistanceY", -1, 1, 1, 3, Q("163.97123 mm")),
])
pad9 = body9.newObject("PartDesign::Pad", "Pad008")
pad9.Profile = sketch15
pad9.setExpression("Length", "Params.pad9_length")
doc.recompute()

body10 = doc.addObject("PartDesign::Body", "Body009")
body10.BaseFeature = body9
boolean = body6.newObject("PartDesign::Boolean", "Boolean")
boolean.Type = "Cut"
boolean.addObjects([body10])
doc.recompute()

boolean2 = body8.newObject("PartDesign::Boolean", "Boolean001")
boolean2.Type = "Cut"
boolean2.addObjects([body9])
body11 = doc.addObject("PartDesign::Body", "Body010")

# Sketch on XY plane
sketch16 = body11.newObject("Sketcher::SketchObject", "Sketch015")
sketch16.AttachmentSupport = (doc.getObject("XY_Plane010"), [""])
sketch16.MapMode = "FlatFace"
sketch16.AttachmentOffset = App.Placement(App.Vector(0, 0, -1.1875 * 25.4), App.Rotation())
sketch16.addGeometry([
    Part.LineSegment(App.Vector(42.9, 216.5, 0), App.Vector(42.9, 212.8, 0)),  # 0
    Part.LineSegment(App.Vector(42.9, 212.8, 0), App.Vector(46.1, 211, 0)),  # 1
    Part.LineSegment(App.Vector(46.1, 211, 0), App.Vector(49.3, 212.8, 0)),  # 2
    Part.LineSegment(App.Vector(49.3, 212.8, 0), App.Vector(49.3, 216.5, 0)),  # 3
    Part.LineSegment(App.Vector(49.3, 216.5, 0), App.Vector(46.1, 218.3, 0)),  # 4
    Part.LineSegment(App.Vector(46.1, 218.3, 0), App.Vector(42.9, 216.5, 0)),  # 5
    Part.Circle(App.Vector(46.1, 214.6, 0), App.Vector(0, 0, 1), 2.2),  # 6
], False)
sketch16.addConstraint([
    Sketcher.Constraint("Coincident", 0, 2, 1, 1),
    Sketcher.Constraint("Coincident", 1, 2, 2, 1),
    Sketcher.Constraint("Coincident", 2, 2, 3, 1),
    Sketcher.Constraint("Coincident", 3, 2, 4, 1),
    Sketcher.Constraint("Coincident", 4, 2, 5, 1),
    Sketcher.Constraint("Coincident", 5, 2, 0, 1),
    Sketcher.Constraint("Vertical", 0),
    Sketcher.Constraint("Vertical", 3),
    Sketcher.Constraint("Parallel", 1, 4),
    Sketcher.Constraint("Parallel", 2, 5),
    Sketcher.Constraint("Horizontal", 0, 2, 2, 2),
    Sketcher.Constraint("Horizontal", 3, 2, 5, 2),
    Sketcher.Constraint("Vertical", 6, 3, 1, 2),
    Sketcher.Constraint("Vertical", 1, 2, 4, 2),
    Sketcher.Constraint("Angle", 1, Q("-30 deg")),
    Sketcher.Constraint("Diameter", 6, Q("0.1695 in")),
    Sketcher.Constraint("DistanceY", -1, 1, 6, 3, Q("8.45 in")),
    Sketcher.Constraint("DistanceX", -1, 1, 0, 2, Q("1.69 in")),
    Sketcher.Constraint("DistanceX", -1, 1, 2, 2, Q("1.94 in")),
    Sketcher.Constraint("DistanceY", 0, 2, 0, 1, Q("3.666174 mm")),
    Sketcher.Constraint("DistanceY", -1, 1, 0, 2, Q("212.796913 mm")),
])
pad10 = body11.newObject("PartDesign::Pad", "Pad009")
pad10.Profile = sketch16
pad10.setExpression("Length", "Params.pad10_length")
body12 = doc.addObject("PartDesign::Body", "Body011")

# Sketch on XY plane
sketch17 = body12.newObject("Sketcher::SketchObject", "Sketch016")
sketch17.AttachmentSupport = (doc.getObject("XY_Plane011"), [""])
sketch17.MapMode = "FlatFace"
sketch17.AttachmentOffset = App.Placement(App.Vector(0, 0, -2.4375 * 25.4), App.Rotation())
sketch17.addGeometry([
    Part.LineSegment(App.Vector(33.4, 184.7, 0), App.Vector(33.4, 181, 0)),  # 0
    Part.LineSegment(App.Vector(33.4, 181, 0), App.Vector(36.6, 179.2, 0)),  # 1
    Part.LineSegment(App.Vector(36.6, 179.2, 0), App.Vector(39.8, 181, 0)),  # 2
    Part.LineSegment(App.Vector(39.8, 181, 0), App.Vector(39.8, 184.7, 0)),  # 3
    Part.LineSegment(App.Vector(39.8, 184.7, 0), App.Vector(36.6, 186.5, 0)),  # 4
    Part.LineSegment(App.Vector(36.6, 186.5, 0), App.Vector(33.4, 184.7, 0)),  # 5
    Part.Circle(App.Vector(36.6, 182.9, 0), App.Vector(0, 0, 1), 2.2),  # 6
], False)
sketch17.addConstraint([
    Sketcher.Constraint("Coincident", 0, 2, 1, 1),
    Sketcher.Constraint("Coincident", 1, 2, 2, 1),
    Sketcher.Constraint("Coincident", 2, 2, 3, 1),
    Sketcher.Constraint("Coincident", 3, 2, 4, 1),
    Sketcher.Constraint("Coincident", 4, 2, 5, 1),
    Sketcher.Constraint("Coincident", 5, 2, 0, 1),
    Sketcher.Constraint("Vertical", 0),
    Sketcher.Constraint("Vertical", 3),
    Sketcher.Constraint("Parallel", 1, 4),
    Sketcher.Constraint("Parallel", 2, 5),
    Sketcher.Constraint("Horizontal", 0, 2, 2, 2),
    Sketcher.Constraint("Horizontal", 3, 2, 5, 2),
    Sketcher.Constraint("Vertical", 6, 3, 1, 2),
    Sketcher.Constraint("Vertical", 1, 2, 4, 2),
    Sketcher.Constraint("Angle", 1, Q("-30 deg")),
    Sketcher.Constraint("Diameter", 6, Q("0.1695 in")),
    Sketcher.Constraint("DistanceY", -1, 1, 6, 3, Q("7.2 in")),
    Sketcher.Constraint("DistanceX", -1, 1, 6, 3, Q("1.44 in")),
    Sketcher.Constraint("DistanceX", 0, 2, 2, 2, Q("0.25 in")),
    Sketcher.Constraint("DistanceY", 0, 2, 0, 1, Q("3.666174 mm")),
    Sketcher.Constraint("DistanceY", -1, 1, 0, 2, Q("181.046913 mm")),
])
pad11 = body12.newObject("PartDesign::Pad", "Pad010")
pad11.Profile = sketch17
pad11.setExpression("Length", "Params.pad11_length")

doc.recompute()
